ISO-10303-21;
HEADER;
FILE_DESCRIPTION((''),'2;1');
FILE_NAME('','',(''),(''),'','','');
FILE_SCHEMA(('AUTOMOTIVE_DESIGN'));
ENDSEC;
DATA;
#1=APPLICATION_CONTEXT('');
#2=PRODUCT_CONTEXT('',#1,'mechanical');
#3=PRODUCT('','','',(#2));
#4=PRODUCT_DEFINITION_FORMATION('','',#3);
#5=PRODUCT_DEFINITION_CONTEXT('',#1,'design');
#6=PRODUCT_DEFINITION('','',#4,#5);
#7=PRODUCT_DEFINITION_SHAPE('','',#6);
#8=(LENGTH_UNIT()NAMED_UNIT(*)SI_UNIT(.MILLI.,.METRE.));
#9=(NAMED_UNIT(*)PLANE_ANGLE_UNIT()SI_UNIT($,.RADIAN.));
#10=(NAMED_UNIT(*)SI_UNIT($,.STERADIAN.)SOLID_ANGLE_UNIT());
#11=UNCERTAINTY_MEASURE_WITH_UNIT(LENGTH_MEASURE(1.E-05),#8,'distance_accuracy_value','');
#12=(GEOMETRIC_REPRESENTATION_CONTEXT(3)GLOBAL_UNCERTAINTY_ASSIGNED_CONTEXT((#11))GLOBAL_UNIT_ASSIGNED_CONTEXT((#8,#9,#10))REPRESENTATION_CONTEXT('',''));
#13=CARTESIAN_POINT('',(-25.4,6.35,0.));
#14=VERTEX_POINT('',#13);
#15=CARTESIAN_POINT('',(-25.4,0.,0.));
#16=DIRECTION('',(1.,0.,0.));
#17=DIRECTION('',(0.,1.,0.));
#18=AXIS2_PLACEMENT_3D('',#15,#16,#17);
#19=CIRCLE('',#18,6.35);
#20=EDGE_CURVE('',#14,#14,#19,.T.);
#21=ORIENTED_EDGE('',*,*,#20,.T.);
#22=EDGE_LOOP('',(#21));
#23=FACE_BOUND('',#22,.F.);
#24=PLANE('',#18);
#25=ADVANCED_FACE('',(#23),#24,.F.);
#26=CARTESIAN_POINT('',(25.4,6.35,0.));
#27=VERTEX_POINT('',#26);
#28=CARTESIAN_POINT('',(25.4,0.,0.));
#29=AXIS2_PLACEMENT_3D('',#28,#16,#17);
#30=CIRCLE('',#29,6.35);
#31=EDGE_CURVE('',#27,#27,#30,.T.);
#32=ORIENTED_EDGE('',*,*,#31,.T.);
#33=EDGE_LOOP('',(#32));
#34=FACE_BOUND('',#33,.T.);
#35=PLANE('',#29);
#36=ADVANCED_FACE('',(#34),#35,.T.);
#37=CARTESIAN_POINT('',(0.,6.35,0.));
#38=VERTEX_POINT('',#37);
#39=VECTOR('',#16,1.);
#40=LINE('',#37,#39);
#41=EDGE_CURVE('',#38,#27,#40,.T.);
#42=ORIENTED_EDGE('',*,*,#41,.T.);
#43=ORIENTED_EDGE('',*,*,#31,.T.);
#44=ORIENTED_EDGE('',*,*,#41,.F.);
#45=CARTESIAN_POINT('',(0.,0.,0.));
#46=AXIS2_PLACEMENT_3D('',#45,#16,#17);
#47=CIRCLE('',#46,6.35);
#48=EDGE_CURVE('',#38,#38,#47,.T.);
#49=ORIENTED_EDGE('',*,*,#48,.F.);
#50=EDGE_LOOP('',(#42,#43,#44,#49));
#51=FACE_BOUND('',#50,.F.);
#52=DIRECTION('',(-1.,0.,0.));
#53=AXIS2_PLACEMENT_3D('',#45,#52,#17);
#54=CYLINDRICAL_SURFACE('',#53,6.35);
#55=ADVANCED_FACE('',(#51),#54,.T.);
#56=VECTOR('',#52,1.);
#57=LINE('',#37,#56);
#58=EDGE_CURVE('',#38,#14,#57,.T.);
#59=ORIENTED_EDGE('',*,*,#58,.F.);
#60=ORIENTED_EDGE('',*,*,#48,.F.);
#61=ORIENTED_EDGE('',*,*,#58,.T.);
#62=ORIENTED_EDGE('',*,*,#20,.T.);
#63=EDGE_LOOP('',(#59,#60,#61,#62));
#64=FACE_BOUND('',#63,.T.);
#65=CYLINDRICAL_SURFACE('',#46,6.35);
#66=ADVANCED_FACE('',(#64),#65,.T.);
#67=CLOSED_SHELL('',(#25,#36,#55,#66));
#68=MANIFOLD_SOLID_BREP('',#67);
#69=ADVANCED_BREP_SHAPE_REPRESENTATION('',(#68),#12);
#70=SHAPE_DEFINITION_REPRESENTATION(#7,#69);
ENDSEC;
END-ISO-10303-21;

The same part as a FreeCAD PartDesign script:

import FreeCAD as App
import Part
import Sketcher

V = App.Vector
Q = App.Units.Quantity

doc = App.newDocument("Part")
body = doc.addObject("PartDesign::Body", "Body")

# Sketch on YZ plane
sketch1 = doc.addObject("Sketcher::SketchObject", "Sketch")
body.addObject(sketch1)
sketch1.AttachmentSupport = (doc.YZ_Plane, [""])
sketch1.MapMode = "FlatFace"
sketch1.addGeometry(Part.Circle(V(0, 0, 0), V(0, 0, 1), 6), False)
sketch1.addConstraint(Sketcher.Constraint("Coincident", 0, 3, -1, 1))
sketch1.addConstraint(Sketcher.Constraint("Diameter", 0, Q("0.5 in")))
pad1 = doc.addObject("PartDesign::Pad", "Pad")
body.addObject(pad1)
pad1.Profile = sketch1
pad1.Length = Q("2 in")
pad1.Midplane = True

doc.recompute()
